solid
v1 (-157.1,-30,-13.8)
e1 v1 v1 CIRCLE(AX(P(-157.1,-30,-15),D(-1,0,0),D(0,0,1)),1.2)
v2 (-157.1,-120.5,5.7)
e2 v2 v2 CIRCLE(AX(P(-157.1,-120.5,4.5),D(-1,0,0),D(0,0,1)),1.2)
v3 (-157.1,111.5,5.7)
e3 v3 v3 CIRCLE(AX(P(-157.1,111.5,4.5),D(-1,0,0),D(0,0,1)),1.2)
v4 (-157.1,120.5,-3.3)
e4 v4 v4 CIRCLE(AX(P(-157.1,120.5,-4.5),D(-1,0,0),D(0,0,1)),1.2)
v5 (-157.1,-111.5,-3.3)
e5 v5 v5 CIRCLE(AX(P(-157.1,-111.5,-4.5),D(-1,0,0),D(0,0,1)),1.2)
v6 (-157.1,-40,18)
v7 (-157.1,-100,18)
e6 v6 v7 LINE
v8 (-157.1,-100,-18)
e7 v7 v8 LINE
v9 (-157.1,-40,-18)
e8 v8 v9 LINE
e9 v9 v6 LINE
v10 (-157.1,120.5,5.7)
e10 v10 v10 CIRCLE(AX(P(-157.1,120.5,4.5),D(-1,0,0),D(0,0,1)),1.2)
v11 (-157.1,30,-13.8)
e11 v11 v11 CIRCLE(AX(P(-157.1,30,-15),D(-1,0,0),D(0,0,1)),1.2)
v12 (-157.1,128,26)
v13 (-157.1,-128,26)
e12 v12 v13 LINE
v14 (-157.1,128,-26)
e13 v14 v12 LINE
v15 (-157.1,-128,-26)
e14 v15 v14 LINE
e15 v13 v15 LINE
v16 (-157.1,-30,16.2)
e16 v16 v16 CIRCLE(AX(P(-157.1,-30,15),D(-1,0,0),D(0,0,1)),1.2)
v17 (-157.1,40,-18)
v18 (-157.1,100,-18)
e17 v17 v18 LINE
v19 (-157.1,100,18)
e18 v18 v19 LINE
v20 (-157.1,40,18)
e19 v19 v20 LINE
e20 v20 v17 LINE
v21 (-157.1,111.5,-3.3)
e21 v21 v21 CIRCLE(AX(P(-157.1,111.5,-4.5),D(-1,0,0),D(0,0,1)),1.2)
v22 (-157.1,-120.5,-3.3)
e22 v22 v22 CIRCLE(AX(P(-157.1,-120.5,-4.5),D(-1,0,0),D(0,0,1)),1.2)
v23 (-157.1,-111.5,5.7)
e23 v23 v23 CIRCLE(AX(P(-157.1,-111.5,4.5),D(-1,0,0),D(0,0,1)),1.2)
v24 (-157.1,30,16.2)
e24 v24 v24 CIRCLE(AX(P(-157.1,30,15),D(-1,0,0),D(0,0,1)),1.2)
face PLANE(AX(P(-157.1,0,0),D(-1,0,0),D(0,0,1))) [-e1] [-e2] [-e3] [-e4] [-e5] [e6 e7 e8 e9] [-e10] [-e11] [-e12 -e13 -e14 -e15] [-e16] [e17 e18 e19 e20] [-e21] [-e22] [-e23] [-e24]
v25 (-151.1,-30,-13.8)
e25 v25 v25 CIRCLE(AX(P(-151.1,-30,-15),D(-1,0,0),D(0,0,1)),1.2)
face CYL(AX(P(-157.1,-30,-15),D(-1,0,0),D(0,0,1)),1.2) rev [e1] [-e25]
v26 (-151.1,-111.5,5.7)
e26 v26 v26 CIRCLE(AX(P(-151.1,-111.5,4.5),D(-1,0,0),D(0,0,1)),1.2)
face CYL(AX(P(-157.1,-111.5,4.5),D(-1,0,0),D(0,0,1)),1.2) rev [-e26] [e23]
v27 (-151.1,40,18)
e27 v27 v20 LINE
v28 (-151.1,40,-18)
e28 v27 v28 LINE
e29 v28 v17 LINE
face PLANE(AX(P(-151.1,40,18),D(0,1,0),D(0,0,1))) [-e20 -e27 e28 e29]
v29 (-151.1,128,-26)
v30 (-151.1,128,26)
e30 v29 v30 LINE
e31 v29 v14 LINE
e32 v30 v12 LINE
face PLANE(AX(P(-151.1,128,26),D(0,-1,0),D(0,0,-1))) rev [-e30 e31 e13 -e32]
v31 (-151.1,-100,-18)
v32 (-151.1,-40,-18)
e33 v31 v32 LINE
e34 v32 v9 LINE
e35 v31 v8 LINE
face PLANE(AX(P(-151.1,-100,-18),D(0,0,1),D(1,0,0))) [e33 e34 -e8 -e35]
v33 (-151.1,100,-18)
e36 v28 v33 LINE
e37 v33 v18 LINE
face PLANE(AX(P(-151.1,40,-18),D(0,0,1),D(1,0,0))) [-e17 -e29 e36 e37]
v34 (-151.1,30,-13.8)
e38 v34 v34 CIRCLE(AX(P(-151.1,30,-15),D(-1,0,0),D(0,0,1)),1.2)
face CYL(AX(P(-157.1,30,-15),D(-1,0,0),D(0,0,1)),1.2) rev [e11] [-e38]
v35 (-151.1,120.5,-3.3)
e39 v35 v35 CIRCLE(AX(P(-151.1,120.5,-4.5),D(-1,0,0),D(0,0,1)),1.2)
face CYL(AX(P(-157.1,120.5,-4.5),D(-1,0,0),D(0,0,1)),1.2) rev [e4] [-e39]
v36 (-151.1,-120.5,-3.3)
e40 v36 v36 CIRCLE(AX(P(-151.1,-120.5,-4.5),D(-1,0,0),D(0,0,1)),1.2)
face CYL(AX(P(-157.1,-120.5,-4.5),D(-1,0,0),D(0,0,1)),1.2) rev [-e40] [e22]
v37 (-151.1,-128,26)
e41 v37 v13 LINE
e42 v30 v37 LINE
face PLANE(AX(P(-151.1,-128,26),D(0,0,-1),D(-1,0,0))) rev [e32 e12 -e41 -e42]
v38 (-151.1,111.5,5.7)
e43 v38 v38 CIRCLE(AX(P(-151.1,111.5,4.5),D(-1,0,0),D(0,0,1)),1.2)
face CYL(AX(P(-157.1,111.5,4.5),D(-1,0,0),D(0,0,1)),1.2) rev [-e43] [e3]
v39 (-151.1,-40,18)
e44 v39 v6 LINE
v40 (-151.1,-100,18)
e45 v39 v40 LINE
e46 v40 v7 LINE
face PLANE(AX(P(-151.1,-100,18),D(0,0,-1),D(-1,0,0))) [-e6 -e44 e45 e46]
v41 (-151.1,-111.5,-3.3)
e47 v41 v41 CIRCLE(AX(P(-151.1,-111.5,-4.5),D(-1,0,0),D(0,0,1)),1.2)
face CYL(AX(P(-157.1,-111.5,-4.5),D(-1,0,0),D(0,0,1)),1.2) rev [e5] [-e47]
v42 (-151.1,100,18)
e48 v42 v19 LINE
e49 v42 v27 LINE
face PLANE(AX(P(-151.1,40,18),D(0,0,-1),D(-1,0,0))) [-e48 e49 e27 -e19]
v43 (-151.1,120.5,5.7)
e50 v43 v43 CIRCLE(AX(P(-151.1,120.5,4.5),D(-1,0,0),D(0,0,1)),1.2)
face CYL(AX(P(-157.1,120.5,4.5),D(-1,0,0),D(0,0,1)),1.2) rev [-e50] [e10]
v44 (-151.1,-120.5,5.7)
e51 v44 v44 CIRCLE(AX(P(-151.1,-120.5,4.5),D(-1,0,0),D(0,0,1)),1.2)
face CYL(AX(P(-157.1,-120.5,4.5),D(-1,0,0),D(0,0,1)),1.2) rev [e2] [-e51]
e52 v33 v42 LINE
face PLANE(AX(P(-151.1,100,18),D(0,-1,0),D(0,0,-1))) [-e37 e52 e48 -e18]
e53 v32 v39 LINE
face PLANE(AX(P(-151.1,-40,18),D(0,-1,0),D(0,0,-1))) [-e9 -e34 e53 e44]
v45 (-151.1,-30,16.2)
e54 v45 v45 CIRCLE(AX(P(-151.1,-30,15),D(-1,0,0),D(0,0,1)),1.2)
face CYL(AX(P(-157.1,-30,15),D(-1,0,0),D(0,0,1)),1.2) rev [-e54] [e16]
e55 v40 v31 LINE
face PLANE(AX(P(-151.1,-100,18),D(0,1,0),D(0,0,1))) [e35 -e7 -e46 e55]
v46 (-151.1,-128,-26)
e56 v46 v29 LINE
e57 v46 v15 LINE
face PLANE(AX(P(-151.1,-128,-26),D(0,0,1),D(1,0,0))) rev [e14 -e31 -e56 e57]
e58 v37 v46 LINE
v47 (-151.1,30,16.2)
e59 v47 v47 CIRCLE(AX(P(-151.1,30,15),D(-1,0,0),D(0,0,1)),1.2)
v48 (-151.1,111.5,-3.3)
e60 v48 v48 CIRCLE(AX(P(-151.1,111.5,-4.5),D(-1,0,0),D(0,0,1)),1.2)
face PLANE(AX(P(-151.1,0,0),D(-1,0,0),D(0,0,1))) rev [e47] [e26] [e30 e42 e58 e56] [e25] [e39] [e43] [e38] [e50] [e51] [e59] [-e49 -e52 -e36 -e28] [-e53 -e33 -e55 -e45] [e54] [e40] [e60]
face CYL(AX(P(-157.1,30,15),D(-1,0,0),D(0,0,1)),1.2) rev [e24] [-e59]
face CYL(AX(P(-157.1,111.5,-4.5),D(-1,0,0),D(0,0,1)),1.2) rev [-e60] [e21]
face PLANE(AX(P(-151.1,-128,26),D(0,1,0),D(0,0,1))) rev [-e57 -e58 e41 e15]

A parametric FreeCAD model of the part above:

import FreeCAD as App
import Part
import Sketcher

V = App.Vector
Q = App.Units.Quantity

doc = App.newDocument("Part")
body = doc.addObject("PartDesign::Body", "Body")

sketch1 = body.newObject("Sketcher::SketchObject", "Sketch")
sketch1.AttachmentSupport = (doc.getObject("YZ_Plane"), [""])
sketch1.MapMode = "FlatFace"
sketch1.AttachmentOffset = App.Placement(V(0, 0, -157.1), App.Rotation())
sketch1.addGeometry(Part.LineSegment(V(128, 26, 0), V(-128, 26, 0)), False)
sketch1.addGeometry(Part.LineSegment(V(-128, 26, 0), V(-128, -26, 0)), False)
sketch1.addGeometry(Part.LineSegment(V(-128, -26, 0), V(128, -26, 0)), False)
sketch1.addGeometry(Part.LineSegment(V(128, -26, 0), V(128, 26, 0)), False)
sketch1.addConstraint(Sketcher.Constraint("Coincident", 0, 2, 1, 1))
sketch1.addConstraint(Sketcher.Constraint("Coincident", 1, 2, 2, 1))
sketch1.addConstraint(Sketcher.Constraint("Coincident", 2, 2, 3, 1))
sketch1.addConstraint(Sketcher.Constraint("Coincident", 3, 2, 0, 1))
sketch1.addConstraint(Sketcher.Constraint("Horizontal", 0))
sketch1.addConstraint(Sketcher.Constraint("Vertical", 1))
sketch1.addConstraint(Sketcher.Constraint("Horizontal", 2))
sketch1.addConstraint(Sketcher.Constraint("Vertical", 3))
sketch1.addConstraint(Sketcher.Constraint("Symmetric", 0, 2, 2, 2, -1, 1))
sketch1.addConstraint(Sketcher.Constraint("DistanceX", 0, 2, 0, 1, Q("256 mm")))
sketch1.addConstraint(Sketcher.Constraint("DistanceY", 1, 2, 1, 1, Q("52 mm")))
pad1 = body.newObject("PartDesign::Pad", "Pad")
pad1.Profile = sketch1
pad1.Length = 6

sketch2 = body.newObject("Sketcher::SketchObject", "Sketch001")
sketch2.AttachmentSupport = (doc.getObject("YZ_Plane"), [""])
sketch2.MapMode = "FlatFace"
sketch2.AttachmentOffset = App.Placement(V(0, 0, -157.1), App.Rotation())
sketch2.addGeometry(Part.Circle(V(111.5, -4.5, 0), V(0, 0, 1), 1.2), False)
sketch2.addConstraint(Sketcher.Constraint("Diameter", 0, Q("2.4 mm")))
sketch2.addConstraint(Sketcher.Constraint("DistanceX", -1, 1, 0, 3, Q("111.5 mm")))
sketch2.addConstraint(Sketcher.Constraint("DistanceY", 0, 3, -1, 1, Q("4.5 mm")))
doc.recompute()
hole = body.newObject("PartDesign::Hole", "Hole")
hole.Profile = sketch2
hole.ThreadType = "None"
hole.Diameter = 2.4
hole.DepthType = "ThroughAll"
hole.Reversed = True

sketch3 = body.newObject("Sketcher::SketchObject", "Sketch002")
sketch3.AttachmentSupport = (doc.getObject("YZ_Plane"), [""])
sketch3.MapMode = "FlatFace"
sketch3.AttachmentOffset = App.Placement(V(0, 0, -157.1), App.Rotation())
sketch3.addGeometry(Part.Circle(V(111.5, 4.5, 0), V(0, 0, 1), 1.2), False)
sketch3.addConstraint(Sketcher.Constraint("Diameter", 0, Q("2.4 mm")))
sketch3.addConstraint(Sketcher.Constraint("DistanceX", -1, 1, 0, 3, Q("111.5 mm")))
sketch3.addConstraint(Sketcher.Constraint("DistanceY", -1, 1, 0, 3, Q("4.5 mm")))
doc.recompute()
hole2 = body.newObject("PartDesign::Hole", "Hole001")
hole2.Profile = sketch3
hole2.ThreadType = "None"
hole2.Diameter = 2.4
hole2.DepthType = "ThroughAll"
hole2.Reversed = True

sketch4 = body.newObject("Sketcher::SketchObject", "Sketch003")
sketch4.AttachmentSupport = (doc.getObject("YZ_Plane"), [""])
sketch4.MapMode = "FlatFace"
sketch4.AttachmentOffset = App.Placement(V(0, 0, -157.1), App.Rotation())
sketch4.addGeometry(Part.Circle(V(120.5, -4.5, 0), V(0, 0, 1), 1.2), False)
sketch4.addConstraint(Sketcher.Constraint("Diameter", 0, Q("2.4 mm")))
sketch4.addConstraint(Sketcher.Constraint("DistanceX", -1, 1, 0, 3, Q("120.5 mm")))
sketch4.addConstraint(Sketcher.Constraint("DistanceY", 0, 3, -1, 1, Q("4.5 mm")))
doc.recompute()
hole3 = body.newObject("PartDesign::Hole", "Hole002")
hole3.Profile = sketch4
hole3.ThreadType = "None"
hole3.Diameter = 2.4
hole3.DepthType = "ThroughAll"
hole3.Reversed = True

sketch5 = body.newObject("Sketcher::SketchObject", "Sketch004")
sketch5.AttachmentSupport = (doc.getObject("YZ_Plane"), [""])
sketch5.MapMode = "FlatFace"
sketch5.AttachmentOffset = App.Placement(V(0, 0, -157.1), App.Rotation())
sketch5.addGeometry(Part.Circle(V(120.5, 4.5, 0), V(0, 0, 1), 1.2), False)
sketch5.addConstraint(Sketcher.Constraint("Diameter", 0, Q("2.4 mm")))
sketch5.addConstraint(Sketcher.Constraint("DistanceX", -1, 1, 0, 3, Q("120.5 mm")))
sketch5.addConstraint(Sketcher.Constraint("DistanceY", -1, 1, 0, 3, Q("4.5 mm")))
doc.recompute()
hole4 = body.newObject("PartDesign::Hole", "Hole003")
hole4.Profile = sketch5
hole4.ThreadType = "None"
hole4.Diameter = 2.4
hole4.DepthType = "ThroughAll"
hole4.Reversed = True

sketch6 = body.newObject("Sketcher::SketchObject", "Sketch005")
sketch6.AttachmentSupport = (doc.getObject("YZ_Plane"), [""])
sketch6.MapMode = "FlatFace"
sketch6.AttachmentOffset = App.Placement(V(0, 0, -157.1), App.Rotation())
sketch6.addGeometry(Part.Circle(V(-120.5, -4.5, 0), V(0, 0, 1), 1.2), False)
sketch6.addConstraint(Sketcher.Constraint("Diameter", 0, Q("2.4 mm")))
sketch6.addConstraint(Sketcher.Constraint("DistanceX", 0, 3, -1, 1, Q("120.5 mm")))
sketch6.addConstraint(Sketcher.Constraint("DistanceY", 0, 3, -1, 1, Q("4.5 mm")))
doc.recompute()
hole5 = body.newObject("PartDesign::Hole", "Hole004")
hole5.Profile = sketch6
hole5.ThreadType = "None"
hole5.Diameter = 2.4
hole5.DepthType = "ThroughAll"
hole5.Reversed = True

sketch7 = body.newObject("Sketcher::SketchObject", "Sketch006")
sketch7.AttachmentSupport = (doc.getObject("YZ_Plane"), [""])
sketch7.MapMode = "FlatFace"
sketch7.AttachmentOffset = App.Placement(V(0, 0, -157.1), App.Rotation())
sketch7.addGeometry(Part.Circle(V(-120.5, 4.5, 0), V(0, 0, 1), 1.2), False)
sketch7.addConstraint(Sketcher.Constraint("Diameter", 0, Q("2.4 mm")))
sketch7.addConstraint(Sketcher.Constraint("DistanceX", 0, 3, -1, 1, Q("120.5 mm")))
sketch7.addConstraint(Sketcher.Constraint("DistanceY", -1, 1, 0, 3, Q("4.5 mm")))
doc.recompute()
hole6 = body.newObject("PartDesign::Hole", "Hole005")
hole6.Profile = sketch7
hole6.ThreadType = "None"
hole6.Diameter = 2.4
hole6.DepthType = "ThroughAll"
hole6.Reversed = True

sketch8 = body.newObject("Sketcher::SketchObject", "Sketch007")
sketch8.AttachmentSupport = (doc.getObject("YZ_Plane"), [""])
sketch8.MapMode = "FlatFace"
sketch8.AttachmentOffset = App.Placement(V(0, 0, -157.1), App.Rotation())
sketch8.addGeometry(Part.Circle(V(-111.5, -4.5, 0), V(0, 0, 1), 1.2), False)
sketch8.addConstraint(Sketcher.Constraint("Diameter", 0, Q("2.4 mm")))
sketch8.addConstraint(Sketcher.Constraint("DistanceX", 0, 3, -1, 1, Q("111.5 mm")))
sketch8.addConstraint(Sketcher.Constraint("DistanceY", 0, 3, -1, 1, Q("4.5 mm")))
doc.recompute()
hole7 = body.newObject("PartDesign::Hole", "Hole006")
hole7.Profile = sketch8
hole7.ThreadType = "None"
hole7.Diameter = 2.4
hole7.DepthType = "ThroughAll"
hole7.Reversed = True

sketch9 = body.newObject("Sketcher::SketchObject", "Sketch008")
sketch9.AttachmentSupport = (doc.getObject("YZ_Plane"), [""])
sketch9.MapMode = "FlatFace"
sketch9.AttachmentOffset = App.Placement(V(0, 0, -157.1), App.Rotation())
sketch9.addGeometry(Part.Circle(V(-111.5, 4.5, 0), V(0, 0, 1), 1.2), False)
sketch9.addConstraint(Sketcher.Constraint("Diameter", 0, Q("2.4 mm")))
sketch9.addConstraint(Sketcher.Constraint("DistanceX", 0, 3, -1, 1, Q("111.5 mm")))
sketch9.addConstraint(Sketcher.Constraint("DistanceY", -1, 1, 0, 3, Q("4.5 mm")))
doc.recompute()
hole8 = body.newObject("PartDesign::Hole", "Hole007")
hole8.Profile = sketch9
hole8.ThreadType = "None"
hole8.Diameter = 2.4
hole8.DepthType = "ThroughAll"
hole8.Reversed = True

sketch10 = body.newObject("Sketcher::SketchObject", "Sketch009")
sketch10.AttachmentSupport = (doc.getObject("YZ_Plane"), [""])
sketch10.MapMode = "FlatFace"
sketch10.AttachmentOffset = App.Placement(V(0, 0, -157.1), App.Rotation())
sketch10.addGeometry(Part.Circle(V(-30, -15, 0), V(0, 0, 1), 1.2), False)
sketch10.addConstraint(Sketcher.Constraint("Diameter", 0, Q("2.4 mm")))
sketch10.addConstraint(Sketcher.Constraint("DistanceX", 0, 3, -1, 1, Q("30 mm")))
sketch10.addConstraint(Sketcher.Constraint("DistanceY", 0, 3, -1, 1, Q("15 mm")))
doc.recompute()
hole9 = body.newObject("PartDesign::Hole", "Hole008")
hole9.Profile = sketch10
hole9.ThreadType = "None"
hole9.Diameter = 2.4
hole9.DepthType = "ThroughAll"
hole9.Reversed = True

sketch11 = body.newObject("Sketcher::SketchObject", "Sketch010")
sketch11.AttachmentSupport = (doc.getObject("YZ_Plane"), [""])
sketch11.MapMode = "FlatFace"
sketch11.AttachmentOffset = App.Placement(V(0, 0, -157.1), App.Rotation())
sketch11.addGeometry(Part.Circle(V(-30, 15, 0), V(0, 0, 1), 1.2), False)
sketch11.addConstraint(Sketcher.Constraint("Diameter", 0, Q("2.4 mm")))
sketch11.addConstraint(Sketcher.Constraint("DistanceX", 0, 3, -1, 1, Q("30 mm")))
sketch11.addConstraint(Sketcher.Constraint("DistanceY", -1, 1, 0, 3, Q("15 mm")))
doc.recompute()
hole10 = body.newObject("PartDesign::Hole", "Hole009")
hole10.Profile = sketch11
hole10.ThreadType = "None"
hole10.Diameter = 2.4
hole10.DepthType = "ThroughAll"
hole10.Reversed = True

sketch12 = body.newObject("Sketcher::SketchObject", "Sketch011")
sketch12.AttachmentSupport = (doc.getObject("YZ_Plane"), [""])
sketch12.MapMode = "FlatFace"
sketch12.AttachmentOffset = App.Placement(V(0, 0, -157.1), App.Rotation())
sketch12.addGeometry(Part.Circle(V(30, -15, 0), V(0, 0, 1), 1.2), False)
sketch12.addConstraint(Sketcher.Constraint("Diameter", 0, Q("2.4 mm")))
sketch12.addConstraint(Sketcher.Constraint("DistanceX", -1, 1, 0, 3, Q("30 mm")))
sketch12.addConstraint(Sketcher.Constraint("DistanceY", 0, 3, -1, 1, Q("15 mm")))
doc.recompute()
hole11 = body.newObject("PartDesign::Hole", "Hole010")
hole11.Profile = sketch12
hole11.ThreadType = "None"
hole11.Diameter = 2.4
hole11.DepthType = "ThroughAll"
hole11.Reversed = True

sketch13 = body.newObject("Sketcher::SketchObject", "Sketch012")
sketch13.AttachmentSupport = (doc.getObject("YZ_Plane"), [""])
sketch13.MapMode = "FlatFace"
sketch13.AttachmentOffset = App.Placement(V(0, 0, -157.1), App.Rotation())
sketch13.addGeometry(Part.Circle(V(30, 15, 0), V(0, 0, 1), 1.2), False)
sketch13.addConstraint(Sketcher.Constraint("Diameter", 0, Q("2.4 mm")))
sketch13.addConstraint(Sketcher.Constraint("DistanceX", -1, 1, 0, 3, Q("30 mm")))
sketch13.addConstraint(Sketcher.Constraint("DistanceY", -1, 1, 0, 3, Q("15 mm")))
doc.recompute()
hole12 = body.newObject("PartDesign::Hole", "Hole011")
hole12.Profile = sketch13
hole12.ThreadType = "None"
hole12.Diameter = 2.4
hole12.DepthType = "ThroughAll"
hole12.Reversed = True

sketch14 = body.newObject("Sketcher::SketchObject", "Sketch013")
sketch14.AttachmentSupport = (doc.getObject("YZ_Plane"), [""])
sketch14.MapMode = "FlatFace"
sketch14.AttachmentOffset = App.Placement(V(0, 0, -157.1), App.Rotation())
sketch14.addGeometry(Part.LineSegment(V(100, 18, 0), V(40, 18, 0)), False)
sketch14.addGeometry(Part.LineSegment(V(40, 18, 0), V(40, -18, 0)), False)
sketch14.addGeometry(Part.LineSegment(V(40, -18, 0), V(100, -18, 0)), False)
sketch14.addGeometry(Part.LineSegment(V(100, -18, 0), V(100, 18, 0)), False)
sketch14.addConstraint(Sketcher.Constraint("Coincident", 0, 2, 1, 1))
sketch14.addConstraint(Sketcher.Constraint("Coincident", 1, 2, 2, 1))
sketch14.addConstraint(Sketcher.Constraint("Coincident", 2, 2, 3, 1))
sketch14.addConstraint(Sketcher.Constraint("Coincident", 3, 2, 0, 1))
sketch14.addConstraint(Sketcher.Constraint("Horizontal", 0))
sketch14.addConstraint(Sketcher.Constraint("Vertical", 1))
sketch14.addConstraint(Sketcher.Constraint("Horizontal", 2))
sketch14.addConstraint(Sketcher.Constraint("Vertical", 3))
sketch14.addConstraint(Sketcher.Constraint("DistanceX", 0, 2, 0, 1, Q("60 mm")))
sketch14.addConstraint(Sketcher.Constraint("DistanceY", 1, 2, 1, 1, Q("36 mm")))
sketch14.addConstraint(Sketcher.Constraint("DistanceX", -1, 1, 0, 2, Q("40 mm")))
sketch14.addConstraint(Sketcher.Constraint("DistanceY", -1, 1, 0, 2, Q("18 mm")))
pocket1 = body.newObject("PartDesign::Pocket", "Pocket")
pocket1.Profile = sketch14
pocket1.Length = 6
pocket1.Reversed = True

sketch15 = body.newObject("Sketcher::SketchObject", "Sketch014")
sketch15.AttachmentSupport = (doc.getObject("YZ_Plane"), [""])
sketch15.MapMode = "FlatFace"
sketch15.AttachmentOffset = App.Placement(V(0, 0, -157.1), App.Rotation())
sketch15.addGeometry(Part.LineSegment(V(-40, 18, 0), V(-100, 18, 0)), False)
sketch15.addGeometry(Part.LineSegment(V(-100, 18, 0), V(-100, -18, 0)), False)
sketch15.addGeometry(Part.LineSegment(V(-100, -18, 0), V(-40, -18, 0)), False)
sketch15.addGeometry(Part.LineSegment(V(-40, -18, 0), V(-40, 18, 0)), False)
sketch15.addConstraint(Sketcher.Constraint("Coincident", 0, 2, 1, 1))
sketch15.addConstraint(Sketcher.Constraint("Coincident", 1, 2, 2, 1))
sketch15.addConstraint(Sketcher.Constraint("Coincident", 2, 2, 3, 1))
sketch15.addConstraint(Sketcher.Constraint("Coincident", 3, 2, 0, 1))
sketch15.addConstraint(Sketcher.Constraint("Horizontal", 0))
sketch15.addConstraint(Sketcher.Constraint("Vertical", 1))
sketch15.addConstraint(Sketcher.Constraint("Horizontal", 2))
sketch15.addConstraint(Sketcher.Constraint("Vertical", 3))
sketch15.addConstraint(Sketcher.Constraint("DistanceX", 0, 2, 0, 1, Q("60 mm")))
sketch15.addConstraint(Sketcher.Constraint("DistanceY", 1, 2, 1, 1, Q("36 mm")))
sketch15.addConstraint(Sketcher.Constraint("DistanceX", 0, 2, -1, 1, Q("100 mm")))
sketch15.addConstraint(Sketcher.Constraint("DistanceY", -1, 1, 0, 2, Q("18 mm")))
pocket2 = body.newObject("PartDesign::Pocket", "Pocket001")
pocket2.Profile = sketch15
pocket2.Length = 6
pocket2.Reversed = True

doc.recompute()
